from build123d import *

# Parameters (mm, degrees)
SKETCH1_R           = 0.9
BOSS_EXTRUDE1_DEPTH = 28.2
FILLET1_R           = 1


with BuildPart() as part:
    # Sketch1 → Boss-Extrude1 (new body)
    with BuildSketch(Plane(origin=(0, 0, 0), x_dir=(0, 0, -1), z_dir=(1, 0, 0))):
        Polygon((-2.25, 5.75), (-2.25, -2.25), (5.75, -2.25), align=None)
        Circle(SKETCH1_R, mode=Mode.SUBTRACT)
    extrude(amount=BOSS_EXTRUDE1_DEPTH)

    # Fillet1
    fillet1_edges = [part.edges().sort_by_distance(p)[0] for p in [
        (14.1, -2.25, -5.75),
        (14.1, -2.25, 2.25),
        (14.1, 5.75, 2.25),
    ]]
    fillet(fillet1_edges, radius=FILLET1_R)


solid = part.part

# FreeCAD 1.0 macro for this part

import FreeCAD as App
import Part
import Sketcher


def edges_at(feature, points):
    """Names of the edges that pass closest to the given points."""
    edges = feature.Shape.Edges
    near = lambda p: min(range(len(edges)), key=lambda i: edges[i].distToShape(Part.Vertex(*p))[0])
    return sorted({f"Edge{near(p) + 1}" for p in points})


def add_polygon(sketch, points):
    """Adds a closed chain of lines whose ends are joined by coincident constraints."""
    first, n = sketch.GeometryCount, len(points)
    for a, b in zip(points, points[1:] + points[:1]):
        sketch.addGeometry(Part.LineSegment(App.Vector(*a, 0), App.Vector(*b, 0)), False)
    for i in range(n):
        sketch.addConstraint(Sketcher.Constraint("Coincident", first + i, 2, first + (i + 1) % n, 1))

doc = App.newDocument("Part")
body = doc.addObject("PartDesign::Body", "Body")

# Sketch on YZ plane
sketch1 = body.newObject("Sketcher::SketchObject", "Sketch")
sketch1.AttachmentSupport = (doc.getObject("YZ_Plane"), [""])
sketch1.MapMode = "FlatFace"
add_polygon(sketch1, [(5.8, 2.2), (-2.2, 2.2), (-2.2, -5.8)])  # lines 0-2
sketch1.addGeometry(Part.Circle(App.Vector(0, 0, 0), App.Vector(0, 0, 1), 0.9), False)  # 3
sketch1.addConstraint([
    Sketcher.Constraint("Horizontal", 0),
    Sketcher.Constraint("Vertical", 1),
    Sketcher.Constraint("Coincident", 3, 3, -1, 1),
    Sketcher.Constraint("Equal", 0, 1),
    Sketcher.Constraint("Diameter", 3, 1.8),
    Sketcher.Constraint("DistanceX", 0, 2, 0, 1, 8.0),
    Sketcher.Constraint("DistanceX", 0, 2, -1, 1, 2.25),
    Sketcher.Constraint("DistanceY", -1, 1, 0, 2, 2.25),
])
pad1 = body.newObject("PartDesign::Pad", "Pad")
pad1.Profile = sketch1
pad1.Length = 28.2
doc.recompute()

fillet = body.newObject("PartDesign::Fillet", "Fillet")
fillet.Base = (pad1, edges_at(pad1, [(14.1, -2.25, -5.75), (14.1, -2.25, 2.25), (14.1, 5.75, 2.25)]))
fillet.Radius = 1

doc.recompute()
